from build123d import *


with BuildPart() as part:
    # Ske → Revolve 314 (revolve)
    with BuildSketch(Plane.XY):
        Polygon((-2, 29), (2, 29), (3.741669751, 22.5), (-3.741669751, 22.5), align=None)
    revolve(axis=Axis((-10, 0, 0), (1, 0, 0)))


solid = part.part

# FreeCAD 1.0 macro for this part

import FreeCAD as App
import Part
import Sketcher
from FreeCAD import Vector
Q = App.Units.Quantity

doc = App.newDocument("Part")
body = doc.addObject("PartDesign::Body", "Body")

# Sketch on XY plane
sketch1 = doc.addObject("Sketcher::SketchObject", "Sketch")
body.addObject(sketch1)
sketch1.AttachmentSupport = (doc.XY_Plane, [""])
sketch1.MapMode = "FlatFace"
sketch1.addGeometry([
    Part.LineSegment(Vector(2, 29, 0), Vector(-2, 29, 0)),
    Part.LineSegment(Vector(-2, 29, 0), Vector(-3.7, 22.5, 0)),
    Part.LineSegment(Vector(-3.7, 22.5, 0), Vector(3.7, 22.5, 0)),
    Part.LineSegment(Vector(3.7, 22.5, 0), Vector(2, 29, 0)),
], False)
sketch1.addConstraint([
    Sketcher.Constraint("Coincident", 0, 2, 1, 1),
    Sketcher.Constraint("Coincident", 1, 2, 2, 1),
    Sketcher.Constraint("Coincident", 2, 2, 3, 1),
    Sketcher.Constraint("Coincident", 3, 2, 0, 1),
    Sketcher.Constraint("Horizontal", 0),
    Sketcher.Constraint("Horizontal", 2),
    Sketcher.Constraint("Equal", 1, 3),
    Sketcher.Constraint("DistanceX", 0, 2, 0, 1, Q("4 mm")),
    Sketcher.Constraint("Angle", 1, Q("-105 deg")),
    Sketcher.Constraint("DistanceX", 0, 2, -1, 1, Q("2 mm")),
    Sketcher.Constraint("DistanceY", -1, 1, 0, 2, Q("29 mm")),
    Sketcher.Constraint("DistanceY", -1, 1, 1, 2, Q("22.5 mm")),
])
revolution = doc.addObject("PartDesign::Revolution", "Revolution")
body.addObject(revolution)
revolution.Profile = sketch1
revolution.ReferenceAxis = (sketch1, ["H_Axis"])
revolution.Angle = 360

doc.recompute()
